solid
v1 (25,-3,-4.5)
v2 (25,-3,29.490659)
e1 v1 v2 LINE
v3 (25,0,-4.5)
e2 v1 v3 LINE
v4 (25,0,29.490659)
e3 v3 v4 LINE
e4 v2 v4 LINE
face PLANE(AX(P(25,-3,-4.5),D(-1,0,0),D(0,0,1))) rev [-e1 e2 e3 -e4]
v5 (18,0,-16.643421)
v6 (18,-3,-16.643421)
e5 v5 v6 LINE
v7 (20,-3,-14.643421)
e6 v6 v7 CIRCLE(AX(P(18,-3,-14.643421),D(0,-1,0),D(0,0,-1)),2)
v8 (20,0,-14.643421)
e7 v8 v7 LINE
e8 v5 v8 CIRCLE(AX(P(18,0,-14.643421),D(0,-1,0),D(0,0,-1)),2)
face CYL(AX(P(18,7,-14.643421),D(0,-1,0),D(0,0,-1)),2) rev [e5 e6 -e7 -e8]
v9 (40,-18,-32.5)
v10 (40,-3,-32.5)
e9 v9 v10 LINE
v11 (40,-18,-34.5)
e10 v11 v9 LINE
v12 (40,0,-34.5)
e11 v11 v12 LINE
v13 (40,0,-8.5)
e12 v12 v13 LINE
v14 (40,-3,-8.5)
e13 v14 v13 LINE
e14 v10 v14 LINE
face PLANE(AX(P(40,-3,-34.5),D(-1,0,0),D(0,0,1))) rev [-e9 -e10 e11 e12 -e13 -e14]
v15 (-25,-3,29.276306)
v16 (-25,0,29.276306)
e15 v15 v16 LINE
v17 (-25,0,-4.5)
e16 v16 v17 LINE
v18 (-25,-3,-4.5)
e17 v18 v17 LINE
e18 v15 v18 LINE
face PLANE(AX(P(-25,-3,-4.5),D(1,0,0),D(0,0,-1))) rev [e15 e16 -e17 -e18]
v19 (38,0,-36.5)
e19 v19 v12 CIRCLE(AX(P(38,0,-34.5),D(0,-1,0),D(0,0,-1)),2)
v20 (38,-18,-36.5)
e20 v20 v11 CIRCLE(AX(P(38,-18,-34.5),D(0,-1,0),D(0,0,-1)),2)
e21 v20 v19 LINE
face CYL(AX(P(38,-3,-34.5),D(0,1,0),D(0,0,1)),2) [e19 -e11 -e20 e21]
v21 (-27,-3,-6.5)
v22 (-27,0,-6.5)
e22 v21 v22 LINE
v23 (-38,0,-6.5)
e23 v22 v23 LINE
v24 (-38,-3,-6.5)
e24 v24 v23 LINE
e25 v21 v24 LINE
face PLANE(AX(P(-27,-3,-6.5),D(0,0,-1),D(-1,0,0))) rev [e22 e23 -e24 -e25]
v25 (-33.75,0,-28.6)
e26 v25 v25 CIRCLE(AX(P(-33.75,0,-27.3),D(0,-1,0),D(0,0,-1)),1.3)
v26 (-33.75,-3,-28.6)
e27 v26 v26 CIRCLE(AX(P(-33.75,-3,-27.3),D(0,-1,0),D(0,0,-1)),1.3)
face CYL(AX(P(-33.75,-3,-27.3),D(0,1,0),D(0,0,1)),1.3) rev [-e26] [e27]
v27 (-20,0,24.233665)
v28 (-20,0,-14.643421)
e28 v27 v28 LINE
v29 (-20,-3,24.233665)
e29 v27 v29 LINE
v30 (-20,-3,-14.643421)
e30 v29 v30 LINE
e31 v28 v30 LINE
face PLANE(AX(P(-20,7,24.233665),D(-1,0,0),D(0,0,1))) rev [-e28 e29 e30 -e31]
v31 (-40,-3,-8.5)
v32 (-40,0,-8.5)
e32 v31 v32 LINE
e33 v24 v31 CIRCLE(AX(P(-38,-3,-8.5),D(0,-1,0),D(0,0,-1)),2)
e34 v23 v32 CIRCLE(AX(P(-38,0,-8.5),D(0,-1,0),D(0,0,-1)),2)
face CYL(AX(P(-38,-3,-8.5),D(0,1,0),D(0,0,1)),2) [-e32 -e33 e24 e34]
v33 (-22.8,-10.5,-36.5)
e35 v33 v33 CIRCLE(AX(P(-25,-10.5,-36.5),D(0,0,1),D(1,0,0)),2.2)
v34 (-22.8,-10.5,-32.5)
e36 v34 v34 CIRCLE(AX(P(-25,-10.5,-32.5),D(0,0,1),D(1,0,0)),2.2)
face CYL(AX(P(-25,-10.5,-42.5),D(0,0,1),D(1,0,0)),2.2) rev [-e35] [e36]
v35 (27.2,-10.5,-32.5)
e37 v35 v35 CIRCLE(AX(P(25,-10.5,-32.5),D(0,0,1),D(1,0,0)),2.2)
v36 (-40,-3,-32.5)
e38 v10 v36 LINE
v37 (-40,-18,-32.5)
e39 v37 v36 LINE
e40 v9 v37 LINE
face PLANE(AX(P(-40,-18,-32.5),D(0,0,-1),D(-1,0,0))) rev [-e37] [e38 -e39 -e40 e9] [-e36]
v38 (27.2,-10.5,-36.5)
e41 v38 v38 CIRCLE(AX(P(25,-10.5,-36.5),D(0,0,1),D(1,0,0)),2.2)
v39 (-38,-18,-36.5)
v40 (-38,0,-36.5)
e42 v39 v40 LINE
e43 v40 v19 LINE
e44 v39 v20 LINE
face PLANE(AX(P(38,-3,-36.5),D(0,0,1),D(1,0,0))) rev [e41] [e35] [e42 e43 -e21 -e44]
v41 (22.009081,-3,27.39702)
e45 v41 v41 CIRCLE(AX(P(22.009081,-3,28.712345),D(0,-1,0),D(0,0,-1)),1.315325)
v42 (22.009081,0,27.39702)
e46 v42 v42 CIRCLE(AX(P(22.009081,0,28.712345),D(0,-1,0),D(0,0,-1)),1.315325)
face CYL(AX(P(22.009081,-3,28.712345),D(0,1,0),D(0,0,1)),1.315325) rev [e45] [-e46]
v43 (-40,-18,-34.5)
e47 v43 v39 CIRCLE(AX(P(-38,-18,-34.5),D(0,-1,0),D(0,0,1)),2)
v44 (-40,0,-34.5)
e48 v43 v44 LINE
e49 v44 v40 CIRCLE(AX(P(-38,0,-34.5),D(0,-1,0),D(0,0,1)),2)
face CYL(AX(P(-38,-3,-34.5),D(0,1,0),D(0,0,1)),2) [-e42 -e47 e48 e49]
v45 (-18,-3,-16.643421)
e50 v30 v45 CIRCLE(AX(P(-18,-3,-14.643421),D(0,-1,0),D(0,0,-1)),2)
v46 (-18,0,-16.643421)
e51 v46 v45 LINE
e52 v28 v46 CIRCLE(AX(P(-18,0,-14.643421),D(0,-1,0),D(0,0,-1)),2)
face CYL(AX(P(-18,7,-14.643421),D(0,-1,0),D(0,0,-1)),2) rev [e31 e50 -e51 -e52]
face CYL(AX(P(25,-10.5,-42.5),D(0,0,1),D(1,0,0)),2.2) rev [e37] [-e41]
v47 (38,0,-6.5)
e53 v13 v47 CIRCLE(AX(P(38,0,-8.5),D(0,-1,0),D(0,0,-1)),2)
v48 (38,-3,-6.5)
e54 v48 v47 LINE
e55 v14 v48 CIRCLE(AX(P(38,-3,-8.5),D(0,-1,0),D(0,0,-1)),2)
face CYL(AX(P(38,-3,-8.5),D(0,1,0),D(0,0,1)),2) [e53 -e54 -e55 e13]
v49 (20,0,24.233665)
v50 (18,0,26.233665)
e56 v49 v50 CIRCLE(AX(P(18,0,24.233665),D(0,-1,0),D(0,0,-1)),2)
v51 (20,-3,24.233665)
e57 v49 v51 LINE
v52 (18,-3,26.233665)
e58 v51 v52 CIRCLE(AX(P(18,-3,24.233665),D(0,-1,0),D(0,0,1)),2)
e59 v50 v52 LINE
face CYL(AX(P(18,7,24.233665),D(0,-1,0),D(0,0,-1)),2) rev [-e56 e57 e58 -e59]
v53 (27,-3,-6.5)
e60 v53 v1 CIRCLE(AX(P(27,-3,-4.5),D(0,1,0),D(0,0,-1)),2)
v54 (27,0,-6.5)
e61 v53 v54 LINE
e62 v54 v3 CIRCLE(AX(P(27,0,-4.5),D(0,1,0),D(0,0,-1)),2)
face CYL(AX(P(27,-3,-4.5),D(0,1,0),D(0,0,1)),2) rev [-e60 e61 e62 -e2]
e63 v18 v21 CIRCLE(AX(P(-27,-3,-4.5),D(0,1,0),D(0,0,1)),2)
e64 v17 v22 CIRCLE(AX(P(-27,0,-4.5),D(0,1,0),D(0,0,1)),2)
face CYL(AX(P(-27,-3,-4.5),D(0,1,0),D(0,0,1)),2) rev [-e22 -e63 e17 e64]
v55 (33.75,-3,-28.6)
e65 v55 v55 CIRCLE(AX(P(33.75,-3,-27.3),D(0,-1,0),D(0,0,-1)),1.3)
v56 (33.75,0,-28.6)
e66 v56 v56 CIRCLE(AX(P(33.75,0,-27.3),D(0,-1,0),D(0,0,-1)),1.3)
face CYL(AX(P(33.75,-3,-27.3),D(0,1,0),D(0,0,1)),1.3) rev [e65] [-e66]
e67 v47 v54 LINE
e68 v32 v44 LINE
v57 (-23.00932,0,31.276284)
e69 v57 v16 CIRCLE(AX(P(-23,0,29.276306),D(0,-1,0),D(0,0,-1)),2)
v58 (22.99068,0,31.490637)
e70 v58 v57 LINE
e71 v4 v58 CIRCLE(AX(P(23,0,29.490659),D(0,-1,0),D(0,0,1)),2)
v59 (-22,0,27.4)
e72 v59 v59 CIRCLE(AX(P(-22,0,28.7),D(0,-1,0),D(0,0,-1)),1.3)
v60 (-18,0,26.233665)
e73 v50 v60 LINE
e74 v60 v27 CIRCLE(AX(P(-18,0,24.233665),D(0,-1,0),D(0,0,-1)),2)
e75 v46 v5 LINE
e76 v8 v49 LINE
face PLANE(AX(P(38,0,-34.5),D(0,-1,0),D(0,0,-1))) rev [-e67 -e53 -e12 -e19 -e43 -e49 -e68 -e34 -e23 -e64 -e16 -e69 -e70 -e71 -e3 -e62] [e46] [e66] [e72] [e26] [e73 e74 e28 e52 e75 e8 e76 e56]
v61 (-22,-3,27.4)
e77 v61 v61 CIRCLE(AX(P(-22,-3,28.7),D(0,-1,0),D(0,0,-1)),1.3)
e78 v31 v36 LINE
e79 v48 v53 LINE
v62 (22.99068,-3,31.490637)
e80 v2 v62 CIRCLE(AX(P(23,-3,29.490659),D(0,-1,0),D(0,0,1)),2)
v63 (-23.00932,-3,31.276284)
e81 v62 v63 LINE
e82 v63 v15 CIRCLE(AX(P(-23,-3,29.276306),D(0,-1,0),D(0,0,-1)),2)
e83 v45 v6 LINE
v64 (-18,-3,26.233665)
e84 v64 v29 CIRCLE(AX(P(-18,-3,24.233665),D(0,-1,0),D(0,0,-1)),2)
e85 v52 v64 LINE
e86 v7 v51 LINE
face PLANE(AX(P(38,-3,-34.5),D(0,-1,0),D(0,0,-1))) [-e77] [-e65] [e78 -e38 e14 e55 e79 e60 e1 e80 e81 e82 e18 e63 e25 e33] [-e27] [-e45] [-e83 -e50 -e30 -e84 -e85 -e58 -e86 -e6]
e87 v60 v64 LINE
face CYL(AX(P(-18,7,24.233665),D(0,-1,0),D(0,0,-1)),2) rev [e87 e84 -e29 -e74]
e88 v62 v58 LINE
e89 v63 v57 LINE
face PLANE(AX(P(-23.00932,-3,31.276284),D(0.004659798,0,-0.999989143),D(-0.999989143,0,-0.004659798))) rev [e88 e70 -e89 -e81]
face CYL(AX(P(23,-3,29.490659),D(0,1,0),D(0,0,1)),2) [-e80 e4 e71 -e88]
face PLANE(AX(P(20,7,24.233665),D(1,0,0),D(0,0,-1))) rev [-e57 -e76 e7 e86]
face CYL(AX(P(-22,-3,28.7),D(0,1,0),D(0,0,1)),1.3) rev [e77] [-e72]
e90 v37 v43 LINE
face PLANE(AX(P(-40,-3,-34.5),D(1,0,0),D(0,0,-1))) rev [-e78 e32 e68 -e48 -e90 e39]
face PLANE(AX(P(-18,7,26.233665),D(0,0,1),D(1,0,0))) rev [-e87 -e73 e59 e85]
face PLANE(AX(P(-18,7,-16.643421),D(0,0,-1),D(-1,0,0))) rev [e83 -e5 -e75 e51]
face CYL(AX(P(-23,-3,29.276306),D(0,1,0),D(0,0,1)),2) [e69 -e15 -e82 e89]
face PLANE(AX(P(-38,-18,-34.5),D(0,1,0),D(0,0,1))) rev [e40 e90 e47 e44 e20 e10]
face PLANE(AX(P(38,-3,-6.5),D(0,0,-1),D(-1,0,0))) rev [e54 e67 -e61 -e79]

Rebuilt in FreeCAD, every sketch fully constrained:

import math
import FreeCAD as App
import Part
import Sketcher
Q = App.Units.Quantity

doc = App.newDocument("Part")
body = doc.addObject("PartDesign::Body", "Body")

# Sketch on XZ plane
sketch1 = body.newObject("Sketcher::SketchObject", "Sketch")
sketch1.AttachmentSupport = (doc.getObject("XZ_Plane"), [""])
sketch1.MapMode = "FlatFace"
sketch1.addGeometry([
    Part.LineSegment(App.Vector(22.99068, 31.490637, 0), App.Vector(-23.00932, 31.276284, 0)),  # 0
    Part.ArcOfCircle(Part.Circle(App.Vector(-23, 29.276306, 0), App.Vector(0, 0, 1), 2), math.radians(90.266988), math.radians(180)),  # 1
    Part.LineSegment(App.Vector(-25, 29.276306, 0), App.Vector(-25, -4.5, 0)),  # 2
    Part.ArcOfCircle(Part.Circle(App.Vector(-27, -4.5, 0), App.Vector(0, 0, 1), 2), math.radians(-90), math.radians(0)),  # 3
    Part.LineSegment(App.Vector(-27, -6.5, 0), App.Vector(-38, -6.5, 0)),  # 4
    Part.ArcOfCircle(Part.Circle(App.Vector(-38, -8.5, 0), App.Vector(0, 0, 1), 2), math.radians(90), math.radians(180)),  # 5
    Part.LineSegment(App.Vector(-40, -8.5, 0), App.Vector(-40, -34.5, 0)),  # 6
    Part.ArcOfCircle(Part.Circle(App.Vector(-38, -34.5, 0), App.Vector(0, 0, 1), 2), math.radians(-180), math.radians(-90)),  # 7
    Part.LineSegment(App.Vector(-38, -36.5, 0), App.Vector(38, -36.5, 0)),  # 8
    Part.ArcOfCircle(Part.Circle(App.Vector(38, -34.5, 0), App.Vector(0, 0, 1), 2), math.radians(-90), math.radians(0)),  # 9
    Part.LineSegment(App.Vector(40, -34.5, 0), App.Vector(40, -8.5, 0)),  # 10
    Part.ArcOfCircle(Part.Circle(App.Vector(38, -8.5, 0), App.Vector(0, 0, 1), 2), math.radians(0), math.radians(90)),  # 11
    Part.LineSegment(App.Vector(38, -6.5, 0), App.Vector(27, -6.5, 0)),  # 12
    Part.ArcOfCircle(Part.Circle(App.Vector(27, -4.5, 0), App.Vector(0, 0, 1), 2), math.radians(-180), math.radians(-90)),  # 13
    Part.LineSegment(App.Vector(25, -4.5, 0), App.Vector(25, 29.490659, 0)),  # 14
    Part.ArcOfCircle(Part.Circle(App.Vector(23, 29.490659, 0), App.Vector(0, 0, 1), 2), math.radians(0), math.radians(90.266988)),  # 15
    Part.Circle(App.Vector(33.75, -27.3, 0), App.Vector(0, 0, 1), 1.3),  # 16
    Part.Circle(App.Vector(-33.75, -27.3, 0), App.Vector(0, 0, 1), 1.3),  # 17
    Part.Circle(App.Vector(22.009081, 28.712345, 0), App.Vector(0, 0, 1), 1.315325),  # 18
    Part.Circle(App.Vector(-22, 28.7, 0), App.Vector(0, 0, 1), 1.3),  # 19
], False)
sketch1.addConstraint([
    Sketcher.Constraint("Coincident", 0, 2, 1, 1),
    Sketcher.Constraint("Coincident", 1, 2, 2, 1),
    Sketcher.Constraint("Coincident", 2, 2, 3, 2),
    Sketcher.Constraint("Coincident", 3, 1, 4, 1),
    Sketcher.Constraint("Coincident", 4, 2, 5, 1),
    Sketcher.Constraint("Coincident", 5, 2, 6, 1),
    Sketcher.Constraint("Coincident", 6, 2, 7, 1),
    Sketcher.Constraint("Coincident", 7, 2, 8, 1),
    Sketcher.Constraint("Coincident", 8, 2, 9, 1),
    Sketcher.Constraint("Coincident", 9, 2, 10, 1),
    Sketcher.Constraint("Coincident", 10, 2, 11, 1),
    Sketcher.Constraint("Coincident", 11, 2, 12, 1),
    Sketcher.Constraint("Coincident", 12, 2, 13, 2),
    Sketcher.Constraint("Coincident", 13, 1, 14, 1),
    Sketcher.Constraint("Coincident", 14, 2, 15, 1),
    Sketcher.Constraint("Coincident", 15, 2, 0, 1),
    Sketcher.Constraint("Vertical", 2),
    Sketcher.Constraint("Horizontal", 4),
    Sketcher.Constraint("Vertical", 6),
    Sketcher.Constraint("Horizontal", 8),
    Sketcher.Constraint("Vertical", 10),
    Sketcher.Constraint("Horizontal", 12),
    Sketcher.Constraint("Vertical", 14),
    Sketcher.Constraint("Radius", 1, Q("2 mm")),
    Sketcher.Constraint("Radius", 3, Q("2 mm")),
    Sketcher.Constraint("Radius", 5, Q("2 mm")),
    Sketcher.Constraint("Radius", 7, Q("2 mm")),
    Sketcher.Constraint("Radius", 9, Q("2 mm")),
    Sketcher.Constraint("Radius", 11, Q("2 mm")),
    Sketcher.Constraint("Radius", 13, Q("2 mm")),
    Sketcher.Constraint("Radius", 15, Q("2 mm")),
    Sketcher.Constraint("Diameter", 16, Q("2.6 mm")),
    Sketcher.Constraint("Diameter", 17, Q("2.6 mm")),
    Sketcher.Constraint("Diameter", 19, Q("2.6 mm")),
    Sketcher.Constraint("DistanceX", 4, 2, 4, 1, Q("11 mm")),
    Sketcher.Constraint("DistanceX", 8, 1, 8, 2, Q("76 mm")),
    Sketcher.Constraint("DistanceX", 12, 2, 12, 1, Q("11 mm")),
    Sketcher.Constraint("DistanceY", 6, 2, 6, 1, Q("26 mm")),
    Sketcher.Constraint("DistanceY", 10, 1, 10, 2, Q("26 mm")),
    Sketcher.Constraint("DistanceX", 1, 3, -1, 1, Q("23 mm")),
    Sketcher.Constraint("DistanceX", 5, 3, -1, 1, Q("38 mm")),
    Sketcher.Constraint("DistanceX", -1, 1, 9, 3, Q("38 mm")),
    Sketcher.Constraint("DistanceX", -1, 1, 13, 3, Q("27 mm")),
    Sketcher.Constraint("DistanceX", 19, 3, -1, 1, Q("22 mm")),
    Sketcher.Constraint("DistanceX", 3, 1, -1, 1, Q("27 mm")),
    Sketcher.Constraint("DistanceX", 7, 2, -1, 1, Q("38 mm")),
    Sketcher.Constraint("DistanceX", -1, 1, 11, 2, Q("38 mm")),
    Sketcher.Constraint("DistanceY", 7, 3, 5, 3, Q("26 mm")),
    Sketcher.Constraint("DistanceY", 9, 3, 11, 3, Q("26 mm")),
    Sketcher.Constraint("DistanceY", 5, 3, 2, 2, Q("4 mm")),
    Sketcher.Constraint("DistanceY", 5, 2, 4, 2, Q("2 mm")),
    Sketcher.Constraint("DistanceY", 8, 2, 9, 2, Q("2 mm")),
    Sketcher.Constraint("DistanceY", 12, 2, 13, 1, Q("2 mm")),
    Sketcher.Constraint("DistanceY", 3, 3, -1, 1, Q("4.5 mm")),
    Sketcher.Constraint("DistanceY", 16, 3, -1, 1, Q("27.3 mm")),
    Sketcher.Constraint("DistanceY", 17, 3, -1, 1, Q("27.3 mm")),
    Sketcher.Constraint("DistanceY", -1, 1, 19, 3, Q("28.7 mm")),
    Sketcher.Constraint("Diameter", 18, Q("2.63065 mm")),
    Sketcher.Constraint("DistanceX", -1, 1, 16, 3, Q("33.75 mm")),
    Sketcher.Constraint("DistanceX", 17, 3, -1, 1, Q("33.75 mm")),
    Sketcher.Constraint("Distance", 0, Q("46.000499 mm")),
    Sketcher.Constraint("DistanceY", 14, 1, 14, 2, Q("33.990659 mm")),
    Sketcher.Constraint("DistanceX", 0, 2, 18, 3, Q("45.0184 mm")),
    Sketcher.Constraint("DistanceY", 2, 2, 2, 1, Q("33.776306 mm")),
    Sketcher.Constraint("DistanceY", -1, 1, 15, 3, Q("29.490659 mm")),
    Sketcher.Constraint("DistanceX", -1, 1, 18, 3, Q("22.009081 mm")),
    Sketcher.Constraint("DistanceY", 18, 3, 1, 3, Q("0.563961 mm")),
    Sketcher.Constraint("DistanceY", 1, 2, 0, 2, Q("1.999978 mm")),
])
pad1 = body.newObject("PartDesign::Pad", "Pad")
pad1.Profile = sketch1
pad1.Length = 3

# Sketch on XZ plane
sketch2 = body.newObject("Sketcher::SketchObject", "Sketch001")
sketch2.AttachmentSupport = (doc.getObject("XZ_Plane"), [""])
sketch2.MapMode = "FlatFace"
sketch2.AttachmentOffset = App.Placement(App.Vector(0, 0, 3), App.Rotation())
sketch2.addGeometry([
    Part.LineSegment(App.Vector(18, 26.2, 0), App.Vector(-18, 26.2, 0)),  # 0
    Part.ArcOfCircle(Part.Circle(App.Vector(-18, 24.2, 0), App.Vector(0, 0, 1), 2), math.radians(90), math.radians(180)),  # 1
    Part.LineSegment(App.Vector(-20, 24.2, 0), App.Vector(-20, -14.6, 0)),  # 2
    Part.ArcOfCircle(Part.Circle(App.Vector(-18, -14.6, 0), App.Vector(0, 0, 1), 2), math.radians(-180), math.radians(-90)),  # 3
    Part.LineSegment(App.Vector(-18, -16.6, 0), App.Vector(18, -16.6, 0)),  # 4
    Part.ArcOfCircle(Part.Circle(App.Vector(18, -14.6, 0), App.Vector(0, 0, 1), 2), math.radians(-90), math.radians(0)),  # 5
    Part.LineSegment(App.Vector(20, -14.6, 0), App.Vector(20, 24.2, 0)),  # 6
    Part.ArcOfCircle(Part.Circle(App.Vector(18, 24.2, 0), App.Vector(0, 0, 1), 2), math.radians(0), math.radians(90)),  # 7
], False)
sketch2.addConstraint([
    Sketcher.Constraint("Tangent", 0, 2, 1, 1),
    Sketcher.Constraint("Tangent", 1, 2, 2, 1),
    Sketcher.Constraint("Tangent", 2, 2, 3, 1),
    Sketcher.Constraint("Tangent", 3, 2, 4, 1),
    Sketcher.Constraint("Tangent", 4, 2, 5, 1),
    Sketcher.Constraint("Tangent", 5, 2, 6, 1),
    Sketcher.Constraint("Tangent", 6, 2, 7, 1),
    Sketcher.Constraint("Tangent", 7, 2, 0, 1),
    Sketcher.Constraint("Horizontal", 0),
    Sketcher.Constraint("Vertical", 2),
    Sketcher.Constraint("Horizontal", 4),
    Sketcher.Constraint("Vertical", 6),
    Sketcher.Constraint("Equal", 1, 3),
    Sketcher.Constraint("Equal", 3, 5),
    Sketcher.Constraint("Equal", 5, 7),
    Sketcher.Constraint("Radius", 1, Q("2 mm")),
    Sketcher.Constraint("DistanceX", 0, 2, 0, 1, Q("36 mm")),
    Sketcher.Constraint("DistanceX", 1, 3, -1, 1, Q("18 mm")),
    Sketcher.Constraint("DistanceY", 2, 2, 2, 1, Q("38.877086 mm")),
    Sketcher.Constraint("DistanceY", 3, 3, -1, 1, Q("14.643421 mm")),
])
pocket1 = body.newObject("PartDesign::Pocket", "Pocket")
pocket1.Profile = sketch2
pocket1.Length = 10

# Sketch on XZ plane
sketch3 = body.newObject("Sketcher::SketchObject", "Sketch002")
sketch3.AttachmentSupport = (doc.getObject("XZ_Plane"), [""])
sketch3.MapMode = "FlatFace"
sketch3.AttachmentOffset = App.Placement(App.Vector(0, 0, 3), App.Rotation())
sketch3.addGeometry([
    Part.LineSegment(App.Vector(40, -32.5, 0), App.Vector(-40, -32.5, 0)),  # 0
    Part.LineSegment(App.Vector(-40, -32.5, 0), App.Vector(-40, -34.5, 0)),  # 1
    Part.ArcOfCircle(Part.Circle(App.Vector(-38, -34.5, 0), App.Vector(0, 0, 1), 2), math.radians(-180), math.radians(-90)),  # 2
    Part.LineSegment(App.Vector(-38, -36.5, 0), App.Vector(38, -36.5, 0)),  # 3
    Part.ArcOfCircle(Part.Circle(App.Vector(38, -34.5, 0), App.Vector(0, 0, 1), 2), math.radians(-90), math.radians(0)),  # 4
    Part.LineSegment(App.Vector(40, -34.5, 0), App.Vector(40, -32.5, 0)),  # 5
], False)
sketch3.addConstraint([
    Sketcher.Constraint("Coincident", 0, 2, 1, 1),
    Sketcher.Constraint("Tangent", 1, 2, 2, 1),
    Sketcher.Constraint("Tangent", 2, 2, 3, 1),
    Sketcher.Constraint("Tangent", 3, 2, 4, 1),
    Sketcher.Constraint("Tangent", 4, 2, 5, 1),
    Sketcher.Constraint("Coincident", 5, 2, 0, 1),
    Sketcher.Constraint("Horizontal", 0),
    Sketcher.Constraint("Vertical", 1),
    Sketcher.Constraint("Horizontal", 3),
    Sketcher.Constraint("Vertical", 5),
    Sketcher.Constraint("Equal", 2, 4),
    Sketcher.Constraint("Radius", 2, Q("2 mm")),
    Sketcher.Constraint("DistanceX", 0, 2, 0, 1, Q("80 mm")),
    Sketcher.Constraint("DistanceY", 1, 2, 1, 1, Q("2 mm")),
    Sketcher.Constraint("DistanceX", 2, 3, -1, 1, Q("38 mm")),
    Sketcher.Constraint("DistanceY", 2, 3, -1, 1, Q("34.5 mm")),
])
pad2 = body.newObject("PartDesign::Pad", "Pad001")
pad2.Profile = sketch3
pad2.Length = 15

# Sketch on XY plane
sketch4 = body.newObject("Sketcher::SketchObject", "Sketch003")
sketch4.AttachmentSupport = (doc.getObject("XY_Plane"), [""])
sketch4.MapMode = "FlatFace"
sketch4.AttachmentOffset = App.Placement(App.Vector(0, 0, -32.5), App.Rotation())
sketch4.addGeometry([
    Part.Circle(App.Vector(-25, -10.5, 0), App.Vector(0, 0, 1), 2.2),
    Part.Circle(App.Vector(25, -10.5, 0), App.Vector(0, 0, 1), 2.2),
], False)
sketch4.addConstraint([
    Sketcher.Constraint("Equal", 0, 1),
    Sketcher.Constraint("Symmetric", 0, 3, 1, 3, -2),
    Sketcher.Constraint("Diameter", 0, Q("4.4 mm")),
    Sketcher.Constraint("DistanceX", 0, 3, -1, 1, Q("25 mm")),
    Sketcher.Constraint("DistanceY", 0, 3, -1, 1, Q("10.5 mm")),
])
pocket2 = body.newObject("PartDesign::Pocket", "Pocket001")
pocket2.Profile = sketch4
pocket2.Length = 10

doc.recompute()
